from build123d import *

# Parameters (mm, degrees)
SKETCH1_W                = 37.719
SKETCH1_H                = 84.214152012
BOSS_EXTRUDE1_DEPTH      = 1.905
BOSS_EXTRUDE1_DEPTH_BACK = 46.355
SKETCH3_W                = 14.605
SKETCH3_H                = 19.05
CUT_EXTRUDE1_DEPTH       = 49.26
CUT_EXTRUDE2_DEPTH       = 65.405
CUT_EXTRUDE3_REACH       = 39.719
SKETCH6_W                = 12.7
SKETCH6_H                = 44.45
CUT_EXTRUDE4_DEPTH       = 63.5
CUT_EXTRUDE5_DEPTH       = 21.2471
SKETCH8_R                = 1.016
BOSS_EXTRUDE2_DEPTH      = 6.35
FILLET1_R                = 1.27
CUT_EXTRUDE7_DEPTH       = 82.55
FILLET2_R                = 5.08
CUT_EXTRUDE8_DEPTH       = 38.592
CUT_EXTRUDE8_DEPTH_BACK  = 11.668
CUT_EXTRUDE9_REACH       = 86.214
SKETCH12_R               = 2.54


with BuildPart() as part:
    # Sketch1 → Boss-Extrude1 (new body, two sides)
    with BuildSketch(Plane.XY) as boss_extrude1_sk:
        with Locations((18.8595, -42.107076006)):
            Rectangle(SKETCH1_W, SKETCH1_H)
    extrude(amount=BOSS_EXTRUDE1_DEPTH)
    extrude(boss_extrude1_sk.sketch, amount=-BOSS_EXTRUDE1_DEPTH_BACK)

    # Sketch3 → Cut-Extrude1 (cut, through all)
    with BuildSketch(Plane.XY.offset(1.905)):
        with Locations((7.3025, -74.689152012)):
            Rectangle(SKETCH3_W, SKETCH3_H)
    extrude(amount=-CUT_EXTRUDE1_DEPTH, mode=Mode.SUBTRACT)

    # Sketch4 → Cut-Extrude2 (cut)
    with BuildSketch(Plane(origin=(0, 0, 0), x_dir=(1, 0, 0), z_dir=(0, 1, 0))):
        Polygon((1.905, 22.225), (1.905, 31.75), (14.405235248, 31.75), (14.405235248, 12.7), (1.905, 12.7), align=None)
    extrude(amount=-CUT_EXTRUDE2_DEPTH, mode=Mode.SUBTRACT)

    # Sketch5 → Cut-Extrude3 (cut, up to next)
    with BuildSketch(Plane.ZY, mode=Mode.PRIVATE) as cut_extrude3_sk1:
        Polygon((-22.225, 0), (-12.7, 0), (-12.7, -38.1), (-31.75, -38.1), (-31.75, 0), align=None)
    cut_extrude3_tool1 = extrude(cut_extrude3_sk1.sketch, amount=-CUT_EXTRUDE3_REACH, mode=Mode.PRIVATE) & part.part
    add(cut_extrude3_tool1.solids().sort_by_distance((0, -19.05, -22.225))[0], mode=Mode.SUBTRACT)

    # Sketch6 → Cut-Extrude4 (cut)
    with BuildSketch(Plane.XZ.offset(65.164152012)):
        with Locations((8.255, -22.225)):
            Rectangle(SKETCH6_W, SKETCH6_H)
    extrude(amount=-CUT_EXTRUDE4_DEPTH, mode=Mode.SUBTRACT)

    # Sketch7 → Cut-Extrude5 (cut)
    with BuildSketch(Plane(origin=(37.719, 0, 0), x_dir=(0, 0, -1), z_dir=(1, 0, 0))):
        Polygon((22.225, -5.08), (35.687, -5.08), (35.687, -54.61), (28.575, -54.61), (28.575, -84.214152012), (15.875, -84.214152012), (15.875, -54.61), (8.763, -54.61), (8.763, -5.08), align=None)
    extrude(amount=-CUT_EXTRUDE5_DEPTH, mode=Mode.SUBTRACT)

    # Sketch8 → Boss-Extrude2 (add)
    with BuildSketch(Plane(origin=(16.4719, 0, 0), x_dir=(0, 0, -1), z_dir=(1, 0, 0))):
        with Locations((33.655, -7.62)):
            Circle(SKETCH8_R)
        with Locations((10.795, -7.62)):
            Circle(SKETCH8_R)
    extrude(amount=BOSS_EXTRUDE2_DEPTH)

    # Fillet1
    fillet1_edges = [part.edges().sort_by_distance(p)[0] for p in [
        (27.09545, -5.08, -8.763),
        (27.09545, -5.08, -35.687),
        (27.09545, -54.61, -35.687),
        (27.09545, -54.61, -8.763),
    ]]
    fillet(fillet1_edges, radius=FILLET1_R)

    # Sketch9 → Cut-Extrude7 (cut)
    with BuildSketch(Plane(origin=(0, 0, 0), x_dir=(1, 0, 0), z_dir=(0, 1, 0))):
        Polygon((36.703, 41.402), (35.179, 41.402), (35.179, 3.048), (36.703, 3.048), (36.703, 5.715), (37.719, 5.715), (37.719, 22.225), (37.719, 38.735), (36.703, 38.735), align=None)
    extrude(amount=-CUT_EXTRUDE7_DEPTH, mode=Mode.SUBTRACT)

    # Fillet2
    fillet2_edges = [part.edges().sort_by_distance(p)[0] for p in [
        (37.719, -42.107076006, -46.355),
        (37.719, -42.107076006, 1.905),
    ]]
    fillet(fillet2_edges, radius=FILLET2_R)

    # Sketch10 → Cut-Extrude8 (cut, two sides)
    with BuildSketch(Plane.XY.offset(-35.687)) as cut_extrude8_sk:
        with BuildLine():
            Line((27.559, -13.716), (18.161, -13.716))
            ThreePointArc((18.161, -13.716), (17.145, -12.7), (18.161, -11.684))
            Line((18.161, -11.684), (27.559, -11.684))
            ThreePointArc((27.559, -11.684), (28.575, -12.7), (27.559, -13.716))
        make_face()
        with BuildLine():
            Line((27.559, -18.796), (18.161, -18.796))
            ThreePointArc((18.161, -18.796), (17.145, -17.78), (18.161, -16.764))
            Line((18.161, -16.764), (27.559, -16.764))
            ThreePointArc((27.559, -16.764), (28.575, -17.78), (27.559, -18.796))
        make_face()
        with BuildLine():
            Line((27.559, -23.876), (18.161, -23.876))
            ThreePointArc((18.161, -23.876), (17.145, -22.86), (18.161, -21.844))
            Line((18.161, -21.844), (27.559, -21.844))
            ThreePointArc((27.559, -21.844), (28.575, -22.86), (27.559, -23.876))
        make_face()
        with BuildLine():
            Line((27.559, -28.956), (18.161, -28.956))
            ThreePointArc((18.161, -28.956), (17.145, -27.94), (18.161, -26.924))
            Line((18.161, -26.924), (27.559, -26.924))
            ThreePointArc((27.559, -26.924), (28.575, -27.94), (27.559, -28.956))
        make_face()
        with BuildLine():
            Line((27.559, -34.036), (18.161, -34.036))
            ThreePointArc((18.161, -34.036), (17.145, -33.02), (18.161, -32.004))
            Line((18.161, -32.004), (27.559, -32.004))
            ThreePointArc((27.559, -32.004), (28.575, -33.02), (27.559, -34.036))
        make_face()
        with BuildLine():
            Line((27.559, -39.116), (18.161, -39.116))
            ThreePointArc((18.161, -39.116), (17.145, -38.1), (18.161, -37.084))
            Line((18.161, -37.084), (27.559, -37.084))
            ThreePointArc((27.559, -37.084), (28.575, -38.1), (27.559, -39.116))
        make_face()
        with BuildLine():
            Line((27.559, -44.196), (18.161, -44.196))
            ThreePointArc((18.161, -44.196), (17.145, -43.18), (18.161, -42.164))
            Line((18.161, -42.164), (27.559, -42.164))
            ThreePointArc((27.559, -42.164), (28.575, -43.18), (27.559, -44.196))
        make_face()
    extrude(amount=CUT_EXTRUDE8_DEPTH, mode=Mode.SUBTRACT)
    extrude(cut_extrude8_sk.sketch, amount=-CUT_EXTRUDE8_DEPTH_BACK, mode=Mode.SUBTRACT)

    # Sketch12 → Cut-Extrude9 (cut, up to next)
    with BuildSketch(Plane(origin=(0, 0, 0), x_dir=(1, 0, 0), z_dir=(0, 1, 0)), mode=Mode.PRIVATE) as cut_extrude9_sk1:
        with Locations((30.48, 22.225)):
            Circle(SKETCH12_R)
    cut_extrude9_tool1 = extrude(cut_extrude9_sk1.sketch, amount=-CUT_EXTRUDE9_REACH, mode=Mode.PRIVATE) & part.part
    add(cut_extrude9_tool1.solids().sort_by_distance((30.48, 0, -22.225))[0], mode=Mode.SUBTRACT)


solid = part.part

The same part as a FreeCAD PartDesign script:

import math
import FreeCAD as App
import Part
import Sketcher
Q = App.Units.Quantity


def edges_at(feature, points):
    """Names of the edges that pass closest to the given points."""
    edges = feature.Shape.Edges
    near = lambda p: min(range(len(edges)), key=lambda i: edges[i].distToShape(Part.Vertex(*p))[0])
    return sorted({f"Edge{near(p) + 1}" for p in points})


def add_polygon(sketch, points):
    """Adds a closed chain of lines whose ends are joined by coincident constraints."""
    first, n = sketch.GeometryCount, len(points)
    for a, b in zip(points, points[1:] + points[:1]):
        sketch.addGeometry(Part.LineSegment(App.Vector(*a, 0), App.Vector(*b, 0)), False)
    for i in range(n):
        sketch.addConstraint(Sketcher.Constraint("Coincident", first + i, 2, first + (i + 1) % n, 1))

doc = App.newDocument("Part")
body = doc.addObject("PartDesign::Body", "Body")

# Sketch on XY plane
sketch1 = body.newObject("Sketcher::SketchObject", "Sketch")
sketch1.AttachmentSupport = (doc.getObject("XY_Plane"), [""])
sketch1.MapMode = "FlatFace"
add_polygon(sketch1, [(0, 0), (0, -84), (38, -84), (38, 0)])  # lines 0-3
sketch1.addConstraint([
    Sketcher.Constraint("Vertical", 0),
    Sketcher.Constraint("Horizontal", 1),
    Sketcher.Constraint("Vertical", 2),
    Sketcher.Constraint("Horizontal", 3),
    Sketcher.Constraint("Coincident", 3, 2, -1, 1),
    Sketcher.Constraint("DistanceX", 1, 1, 1, 2, Q("1.485 in")),
    Sketcher.Constraint("DistanceY", 0, 2, 0, 1, 84.214152),
])
pad1 = body.newObject("PartDesign::Pad", "Pad")
pad1.Profile = sketch1
pad1.Type = "TwoLengths"
pad1.Length = Q("0.075 in")
pad1.Length2 = Q("1.825 in")

# Sketch on XY plane
sketch2 = body.newObject("Sketcher::SketchObject", "Sketch001")
sketch2.AttachmentSupport = (doc.getObject("XY_Plane"), [""])
sketch2.MapMode = "FlatFace"
sketch2.AttachmentOffset = App.Placement(App.Vector(0, 0, 0.075 * 25.4), App.Rotation())
add_polygon(sketch2, [(0, -65), (0, -84), (15, -84), (15, -65)])  # lines 0-3
sketch2.addConstraint([
    Sketcher.Constraint("Vertical", 0),
    Sketcher.Constraint("Horizontal", 1),
    Sketcher.Constraint("Vertical", 2),
    Sketcher.Constraint("Horizontal", 3),
    Sketcher.Constraint("PointOnObject", 0, 2, -2),
    Sketcher.Constraint("DistanceY", 0, 2, 0, 1, Q("0.75 in")),
    Sketcher.Constraint("DistanceX", 1, 1, 1, 2, Q("0.575 in")),
    Sketcher.Constraint("DistanceY", 0, 2, -1, 1, 84.214152),
])
pocket1 = body.newObject("PartDesign::Pocket", "Pocket")
pocket1.Profile = sketch2
pocket1.Type = "ThroughAll"

# Sketch on XZ plane
sketch3 = body.newObject("Sketcher::SketchObject", "Sketch002")
sketch3.AttachmentSupport = (doc.getObject("XZ_Plane"), [""])
sketch3.MapMode = "FlatFace"
add_polygon(sketch3, [(2, -32), (2, -13), (14, -13), (14, -32)])  # lines 0-3
sketch3.addConstraint([
    Sketcher.Constraint("Vertical", 0),
    Sketcher.Constraint("Horizontal", 1),
    Sketcher.Constraint("Vertical", 2),
    Sketcher.Constraint("Horizontal", 3),
    Sketcher.Constraint("DistanceY", 0, 1, 0, 2, Q("0.75 in")),
    Sketcher.Constraint("DistanceY", 0, 2, -1, 1, Q("0.5 in")),
    Sketcher.Constraint("DistanceX", -1, 1, 0, 2, Q("0.075 in")),
    Sketcher.Constraint("DistanceX", 1, 1, 1, 2, 12.500235),
])
pocket2 = body.newObject("PartDesign::Pocket", "Pocket001")
pocket2.Profile = sketch3
pocket2.Length = Q("2.575 in")
pocket2.Reversed = True

# Sketch on YZ plane
sketch4 = body.newObject("Sketcher::SketchObject", "Sketch003")
sketch4.AttachmentSupport = (doc.getObject("YZ_Plane"), [""])
sketch4.MapMode = "FlatFace"
add_polygon(sketch4, [(0, -13), (0, -32), (-38, -32), (-38, -13)])  # lines 0-3
sketch4.addConstraint([
    Sketcher.Constraint("Vertical", 0),
    Sketcher.Constraint("Horizontal", 1),
    Sketcher.Constraint("Vertical", 2),
    Sketcher.Constraint("Horizontal", 3),
    Sketcher.Constraint("PointOnObject", 0, 2, -2),
    Sketcher.Constraint("DistanceX", 1, 2, 1, 1, Q("1.5 in")),
    Sketcher.Constraint("DistanceY", 0, 2, 0, 1, Q("0.75 in")),
    Sketcher.Constraint("DistanceY", 2, 2, -1, 1, Q("0.5 in")),
])
pocket3 = body.newObject("PartDesign::Pocket", "Pocket002")
pocket3.Profile = sketch4
pocket3.Type = "UpToFirst"
pocket3.Reversed = True

# Sketch on XZ plane
sketch5 = body.newObject("Sketcher::SketchObject", "Sketch004")
sketch5.AttachmentSupport = (doc.getObject("XZ_Plane"), [""])
sketch5.MapMode = "FlatFace"
sketch5.AttachmentOffset = App.Placement(App.Vector(0, 0, 65.164152), App.Rotation())
add_polygon(sketch5, [(2, 0), (2, -44), (15, -44), (15, 0)])  # lines 0-3
sketch5.addConstraint([
    Sketcher.Constraint("Vertical", 0),
    Sketcher.Constraint("Horizontal", 1),
    Sketcher.Constraint("Vertical", 2),
    Sketcher.Constraint("Horizontal", 3),
    Sketcher.Constraint("PointOnObject", 2, 2, -1),
    Sketcher.Constraint("DistanceX", 1, 1, 1, 2, Q("0.5 in")),
    Sketcher.Constraint("DistanceY", 0, 2, 0, 1, Q("1.75 in")),
    Sketcher.Constraint("DistanceX", -1, 1, 0, 2, Q("0.075 in")),
])
pocket4 = body.newObject("PartDesign::Pocket", "Pocket003")
pocket4.Profile = sketch5
pocket4.Length = Q("2.5 in")

# Sketch on YZ plane
sketch6 = body.newObject("Sketcher::SketchObject", "Sketch005")
sketch6.AttachmentSupport = (doc.getObject("YZ_Plane"), [""])
sketch6.MapMode = "FlatFace"
sketch6.AttachmentOffset = App.Placement(App.Vector(0, 0, 1.485 * 25.4), App.Rotation())
add_polygon(sketch6, [(-5, -36), (-5, -9), (-55, -9), (-55, -16), (-84, -16), (-84, -29), (-55, -29), (-55, -36)])  # lines 0-7
sketch6.addConstraint([
    Sketcher.Constraint("Vertical", 0),
    Sketcher.Constraint("Horizontal", 1),
    Sketcher.Constraint("Vertical", 2),
    Sketcher.Constraint("Horizontal", 3),
    Sketcher.Constraint("Vertical", 4),
    Sketcher.Constraint("Horizontal", 5),
    Sketcher.Constraint("Vertical", 6),
    Sketcher.Constraint("Horizontal", 7),
    Sketcher.Constraint("Vertical", 2, 2, 5, 2),
    Sketcher.Constraint("Equal", 2, 6),
    Sketcher.Constraint("DistanceY", 4, 2, 4, 1, Q("0.5 in")),
    Sketcher.Constraint("DistanceX", 1, 2, 1, 1, Q("1.95 in")),
    Sketcher.Constraint("DistanceY", 0, 1, 0, 2, Q("1.06 in")),
    Sketcher.Constraint("DistanceX", 0, 2, -1, 1, Q("0.2 in")),
    Sketcher.Constraint("DistanceY", 0, 2, -1, 1, Q("0.345 in")),
    Sketcher.Constraint("DistanceX", 3, 2, 3, 1, 29.604152),
])
pocket5 = body.newObject("PartDesign::Pocket", "Pocket004")
pocket5.Profile = sketch6
pocket5.Length = Q("0.8365 in")

# Sketch on YZ plane
sketch7 = body.newObject("Sketcher::SketchObject", "Sketch006")
sketch7.AttachmentSupport = (doc.getObject("YZ_Plane"), [""])
sketch7.MapMode = "FlatFace"
sketch7.AttachmentOffset = App.Placement(App.Vector(0, 0, 0.6485 * 25.4), App.Rotation())
sketch7.addGeometry([
    Part.Circle(App.Vector(-7.6, -33.7, 0), App.Vector(0, 0, 1), 1),
    Part.Circle(App.Vector(-7.6, -10.8, 0), App.Vector(0, 0, 1), 1),
], False)
sketch7.addConstraint([
    Sketcher.Constraint("Equal", 0, 1),
    Sketcher.Constraint("Vertical", 0, 3, 1, 3),
    Sketcher.Constraint("Diameter", 0, Q("0.08 in")),
    Sketcher.Constraint("DistanceX", 0, 3, -1, 1, Q("0.3 in")),
    Sketcher.Constraint("DistanceY", 0, 3, 1, 3, Q("0.9 in")),
    Sketcher.Constraint("DistanceY", 0, 3, -1, 1, Q("1.325 in")),
])
pad2 = body.newObject("PartDesign::Pad", "Pad001")
pad2.Profile = sketch7
pad2.Length = Q("0.25 in")
doc.recompute()

fillet = body.newObject("PartDesign::Fillet", "Fillet")
fillet.Base = (pad2, edges_at(pad2, [
    (27.095, -5.08, -8.763),
    (27.095, -5.08, -35.687),
    (27.095, -54.61, -35.687),
    (27.095, -54.61, -8.763),
]))
fillet.Radius = Q("0.05 in")

# Sketch on XZ plane
sketch8 = body.newObject("Sketcher::SketchObject", "Sketch007")
sketch8.AttachmentSupport = (doc.getObject("XZ_Plane"), [""])
sketch8.MapMode = "FlatFace"
add_polygon(sketch8, [(36.7, -41.4), (35.2, -41.4), (35.2, -3), (36.7, -3), (36.7, -5.7), (37.7, -5.7), (37.7, -38.7), (36.7, -38.7)])  # lines 0-7
sketch8.addConstraint([
    Sketcher.Constraint("Horizontal", 0),
    Sketcher.Constraint("Vertical", 1),
    Sketcher.Constraint("Horizontal", 2),
    Sketcher.Constraint("Vertical", 3),
    Sketcher.Constraint("Horizontal", 4),
    Sketcher.Constraint("Vertical", 5),
    Sketcher.Constraint("Horizontal", 6),
    Sketcher.Constraint("Vertical", 7),
    Sketcher.Constraint("Vertical", 3, 2, 6, 2),
    Sketcher.Constraint("Equal", 3, 7),
    Sketcher.Constraint("DistanceY", 5, 2, 5, 1, Q("1.3 in")),
    Sketcher.Constraint("DistanceX", 0, 2, 0, 1, Q("0.06 in")),
    Sketcher.Constraint("DistanceX", 4, 1, 4, 2, Q("0.04 in")),
    Sketcher.Constraint("DistanceY", 1, 1, 1, 2, Q("1.51 in")),
    Sketcher.Constraint("DistanceY", 0, 2, -1, 1, Q("1.63 in")),
    Sketcher.Constraint("DistanceX", -1, 1, 0, 2, Q("1.385 in")),
])
pocket6 = body.newObject("PartDesign::Pocket", "Pocket005")
pocket6.Profile = sketch8
pocket6.Length = Q("3.25 in")
pocket6.Reversed = True
doc.recompute()

fillet2 = body.newObject("PartDesign::Fillet", "Fillet001")
fillet2.Base = (pocket6, edges_at(pocket6, [(37.719, -42.107, -46.355), (37.719, -42.107, 1.905)]))
fillet2.Radius = Q("0.2 in")

# Sketch on XY plane
sketch9 = body.newObject("Sketcher::SketchObject", "Sketch008")
sketch9.AttachmentSupport = (doc.getObject("XY_Plane"), [""])
sketch9.MapMode = "FlatFace"
sketch9.AttachmentOffset = App.Placement(App.Vector(0, 0, -1.405 * 25.4), App.Rotation())
sketch9.addGeometry([
    Part.LineSegment(App.Vector(18.2, -13.7, 0), App.Vector(27.6, -13.7, 0)),  # 0
    Part.ArcOfCircle(Part.Circle(App.Vector(27.6, -12.7, 0), App.Vector(0, 0, 1), 1), math.radians(-90), math.radians(90)),  # 1
    Part.LineSegment(App.Vector(27.6, -11.7, 0), App.Vector(18.2, -11.7, 0)),  # 2
    Part.ArcOfCircle(Part.Circle(App.Vector(18.2, -12.7, 0), App.Vector(0, 0, 1), 1), math.radians(90), math.radians(270)),  # 3
    Part.LineSegment(App.Vector(18.2, -18.8, 0), App.Vector(27.6, -18.8, 0)),  # 4
    Part.ArcOfCircle(Part.Circle(App.Vector(27.6, -17.8, 0), App.Vector(0, 0, 1), 1), math.radians(-90), math.radians(90)),  # 5
    Part.LineSegment(App.Vector(27.6, -16.8, 0), App.Vector(18.2, -16.8, 0)),  # 6
    Part.ArcOfCircle(Part.Circle(App.Vector(18.2, -17.8, 0), App.Vector(0, 0, 1), 1), math.radians(90), math.radians(270)),  # 7
    Part.LineSegment(App.Vector(18.2, -23.9, 0), App.Vector(27.6, -23.9, 0)),  # 8
    Part.ArcOfCircle(Part.Circle(App.Vector(27.6, -22.9, 0), App.Vector(0, 0, 1), 1), math.radians(-90), math.radians(90)),  # 9
    Part.LineSegment(App.Vector(27.6, -21.8, 0), App.Vector(18.2, -21.8, 0)),  # 10
    Part.ArcOfCircle(Part.Circle(App.Vector(18.2, -22.9, 0), App.Vector(0, 0, 1), 1), math.radians(90), math.radians(270)),  # 11
    Part.LineSegment(App.Vector(18.2, -29, 0), App.Vector(27.6, -29, 0)),  # 12
    Part.ArcOfCircle(Part.Circle(App.Vector(27.6, -27.9, 0), App.Vector(0, 0, 1), 1), math.radians(-90), math.radians(90)),  # 13
    Part.LineSegment(App.Vector(27.6, -26.9, 0), App.Vector(18.2, -26.9, 0)),  # 14
    Part.ArcOfCircle(Part.Circle(App.Vector(18.2, -27.9, 0), App.Vector(0, 0, 1), 1), math.radians(90), math.radians(270)),  # 15
    Part.LineSegment(App.Vector(18.2, -34, 0), App.Vector(27.6, -34, 0)),  # 16
    Part.ArcOfCircle(Part.Circle(App.Vector(27.6, -33, 0), App.Vector(0, 0, 1), 1), math.radians(-90), math.radians(90)),  # 17
    Part.LineSegment(App.Vector(27.6, -32, 0), App.Vector(18.2, -32, 0)),  # 18
    Part.ArcOfCircle(Part.Circle(App.Vector(18.2, -33, 0), App.Vector(0, 0, 1), 1), math.radians(90), math.radians(270)),  # 19
    Part.LineSegment(App.Vector(18.2, -39.1, 0), App.Vector(27.6, -39.1, 0)),  # 20
    Part.ArcOfCircle(Part.Circle(App.Vector(27.6, -38.1, 0), App.Vector(0, 0, 1), 1), math.radians(-90), math.radians(90)),  # 21
    Part.LineSegment(App.Vector(27.6, -37.1, 0), App.Vector(18.2, -37.1, 0)),  # 22
    Part.ArcOfCircle(Part.Circle(App.Vector(18.2, -38.1, 0), App.Vector(0, 0, 1), 1), math.radians(90), math.radians(270)),  # 23
    Part.LineSegment(App.Vector(18.2, -44.2, 0), App.Vector(27.6, -44.2, 0)),  # 24
    Part.ArcOfCircle(Part.Circle(App.Vector(27.6, -43.2, 0), App.Vector(0, 0, 1), 1), math.radians(-90), math.radians(90)),  # 25
    Part.LineSegment(App.Vector(27.6, -42.2, 0), App.Vector(18.2, -42.2, 0)),  # 26
    Part.ArcOfCircle(Part.Circle(App.Vector(18.2, -43.2, 0), App.Vector(0, 0, 1), 1), math.radians(90), math.radians(270)),  # 27
], False)
sketch9.addConstraint([
    Sketcher.Constraint("Tangent", 0, 2, 1, 1),
    Sketcher.Constraint("Tangent", 1, 2, 2, 1),
    Sketcher.Constraint("Tangent", 2, 2, 3, 1),
    Sketcher.Constraint("Tangent", 3, 2, 0, 1),
    Sketcher.Constraint("Tangent", 4, 2, 5, 1),
    Sketcher.Constraint("Tangent", 5, 2, 6, 1),
    Sketcher.Constraint("Tangent", 6, 2, 7, 1),
    Sketcher.Constraint("Tangent", 7, 2, 4, 1),
    Sketcher.Constraint("Tangent", 8, 2, 9, 1),
    Sketcher.Constraint("Tangent", 9, 2, 10, 1),
    Sketcher.Constraint("Tangent", 10, 2, 11, 1),
    Sketcher.Constraint("Tangent", 11, 2, 8, 1),
    Sketcher.Constraint("Tangent", 12, 2, 13, 1),
    Sketcher.Constraint("Tangent", 13, 2, 14, 1),
    Sketcher.Constraint("Tangent", 14, 2, 15, 1),
    Sketcher.Constraint("Tangent", 15, 2, 12, 1),
    Sketcher.Constraint("Tangent", 16, 2, 17, 1),
    Sketcher.Constraint("Tangent", 17, 2, 18, 1),
    Sketcher.Constraint("Tangent", 18, 2, 19, 1),
    Sketcher.Constraint("Tangent", 19, 2, 16, 1),
    Sketcher.Constraint("Tangent", 20, 2, 21, 1),
    Sketcher.Constraint("Tangent", 21, 2, 22, 1),
    Sketcher.Constraint("Tangent", 22, 2, 23, 1),
    Sketcher.Constraint("Tangent", 23, 2, 20, 1),
    Sketcher.Constraint("Tangent", 24, 2, 25, 1),
    Sketcher.Constraint("Tangent", 25, 2, 26, 1),
    Sketcher.Constraint("Tangent", 26, 2, 27, 1),
    Sketcher.Constraint("Tangent", 27, 2, 24, 1),
    Sketcher.Constraint("Horizontal", 0),
    Sketcher.Constraint("Horizontal", 2),
    Sketcher.Constraint("Horizontal", 4),
    Sketcher.Constraint("Horizontal", 6),
    Sketcher.Constraint("Horizontal", 8),
    Sketcher.Constraint("Horizontal", 10),
    Sketcher.Constraint("Horizontal", 12),
    Sketcher.Constraint("Horizontal", 14),
    Sketcher.Constraint("Horizontal", 16),
    Sketcher.Constraint("Horizontal", 18),
    Sketcher.Constraint("Horizontal", 20),
    Sketcher.Constraint("Horizontal", 22),
    Sketcher.Constraint("Horizontal", 24),
    Sketcher.Constraint("Horizontal", 26),
    Sketcher.Constraint("Equal", 3, 5),
    Sketcher.Constraint("Equal", 7, 9),
    Sketcher.Constraint("Equal", 11, 13),
    Sketcher.Constraint("Equal", 15, 17),
    Sketcher.Constraint("Equal", 19, 21),
    Sketcher.Constraint("Equal", 23, 25),
    Sketcher.Constraint("Vertical", 1, 3, 5, 3),
    Sketcher.Constraint("Vertical", 3, 3, 7, 3),
    Sketcher.Constraint("Vertical", 5, 3, 9, 3),
    Sketcher.Constraint("Vertical", 7, 3, 11, 3),
    Sketcher.Constraint("Vertical", 9, 3, 13, 3),
    Sketcher.Constraint("Vertical", 11, 3, 15, 3),
    Sketcher.Constraint("Vertical", 13, 3, 17, 3),
    Sketcher.Constraint("Vertical", 15, 3, 19, 3),
    Sketcher.Constraint("Vertical", 17, 3, 21, 3),
    Sketcher.Constraint("Vertical", 19, 3, 23, 3),
    Sketcher.Constraint("Vertical", 21, 3, 25, 3),
    Sketcher.Constraint("Vertical", 23, 3, 27, 3),
    Sketcher.Constraint("Radius", 1, Q("0.04 in")),
    Sketcher.Constraint("DistanceX", 0, 1, 0, 2, Q("0.37 in")),
    Sketcher.Constraint("DistanceY", 1, 3, -1, 1, Q("0.5 in")),
    Sketcher.Constraint("DistanceY", 5, 3, -1, 1, Q("0.7 in")),
    Sketcher.Constraint("DistanceY", 9, 3, -1, 1, Q("0.9 in")),
    Sketcher.Constraint("DistanceY", 13, 3, -1, 1, Q("1.1 in")),
    Sketcher.Constraint("DistanceY", 17, 3, -1, 1, Q("1.3 in")),
    Sketcher.Constraint("DistanceY", 21, 3, -1, 1, Q("1.5 in")),
    Sketcher.Constraint("DistanceY", 25, 3, -1, 1, Q("1.7 in")),
    Sketcher.Constraint("DistanceX", -1, 1, 1, 3, Q("1.085 in")),
])
pocket7 = body.newObject("PartDesign::Pocket", "Pocket006")
pocket7.Profile = sketch9
pocket7.Type = "ThroughAll"
pocket7.Midplane = True

# Sketch on XZ plane
sketch10 = body.newObject("Sketcher::SketchObject", "Sketch009")
sketch10.AttachmentSupport = (doc.getObject("XZ_Plane"), [""])
sketch10.MapMode = "FlatFace"
sketch10.addGeometry(Part.Circle(App.Vector(30.5, -22.2, 0), App.Vector(0, 0, 1), 2.5), False)
sketch10.addConstraint([
    Sketcher.Constraint("Diameter", 0, Q("0.2 in")),
    Sketcher.Constraint("DistanceX", -1, 1, 0, 3, Q("1.2 in")),
    Sketcher.Constraint("DistanceY", 0, 3, -1, 1, Q("0.875 in")),
])
pocket8 = body.newObject("PartDesign::Pocket", "Pocket007")
pocket8.Profile = sketch10
pocket8.Type = "UpToFirst"
pocket8.Reversed = True

doc.recompute()
